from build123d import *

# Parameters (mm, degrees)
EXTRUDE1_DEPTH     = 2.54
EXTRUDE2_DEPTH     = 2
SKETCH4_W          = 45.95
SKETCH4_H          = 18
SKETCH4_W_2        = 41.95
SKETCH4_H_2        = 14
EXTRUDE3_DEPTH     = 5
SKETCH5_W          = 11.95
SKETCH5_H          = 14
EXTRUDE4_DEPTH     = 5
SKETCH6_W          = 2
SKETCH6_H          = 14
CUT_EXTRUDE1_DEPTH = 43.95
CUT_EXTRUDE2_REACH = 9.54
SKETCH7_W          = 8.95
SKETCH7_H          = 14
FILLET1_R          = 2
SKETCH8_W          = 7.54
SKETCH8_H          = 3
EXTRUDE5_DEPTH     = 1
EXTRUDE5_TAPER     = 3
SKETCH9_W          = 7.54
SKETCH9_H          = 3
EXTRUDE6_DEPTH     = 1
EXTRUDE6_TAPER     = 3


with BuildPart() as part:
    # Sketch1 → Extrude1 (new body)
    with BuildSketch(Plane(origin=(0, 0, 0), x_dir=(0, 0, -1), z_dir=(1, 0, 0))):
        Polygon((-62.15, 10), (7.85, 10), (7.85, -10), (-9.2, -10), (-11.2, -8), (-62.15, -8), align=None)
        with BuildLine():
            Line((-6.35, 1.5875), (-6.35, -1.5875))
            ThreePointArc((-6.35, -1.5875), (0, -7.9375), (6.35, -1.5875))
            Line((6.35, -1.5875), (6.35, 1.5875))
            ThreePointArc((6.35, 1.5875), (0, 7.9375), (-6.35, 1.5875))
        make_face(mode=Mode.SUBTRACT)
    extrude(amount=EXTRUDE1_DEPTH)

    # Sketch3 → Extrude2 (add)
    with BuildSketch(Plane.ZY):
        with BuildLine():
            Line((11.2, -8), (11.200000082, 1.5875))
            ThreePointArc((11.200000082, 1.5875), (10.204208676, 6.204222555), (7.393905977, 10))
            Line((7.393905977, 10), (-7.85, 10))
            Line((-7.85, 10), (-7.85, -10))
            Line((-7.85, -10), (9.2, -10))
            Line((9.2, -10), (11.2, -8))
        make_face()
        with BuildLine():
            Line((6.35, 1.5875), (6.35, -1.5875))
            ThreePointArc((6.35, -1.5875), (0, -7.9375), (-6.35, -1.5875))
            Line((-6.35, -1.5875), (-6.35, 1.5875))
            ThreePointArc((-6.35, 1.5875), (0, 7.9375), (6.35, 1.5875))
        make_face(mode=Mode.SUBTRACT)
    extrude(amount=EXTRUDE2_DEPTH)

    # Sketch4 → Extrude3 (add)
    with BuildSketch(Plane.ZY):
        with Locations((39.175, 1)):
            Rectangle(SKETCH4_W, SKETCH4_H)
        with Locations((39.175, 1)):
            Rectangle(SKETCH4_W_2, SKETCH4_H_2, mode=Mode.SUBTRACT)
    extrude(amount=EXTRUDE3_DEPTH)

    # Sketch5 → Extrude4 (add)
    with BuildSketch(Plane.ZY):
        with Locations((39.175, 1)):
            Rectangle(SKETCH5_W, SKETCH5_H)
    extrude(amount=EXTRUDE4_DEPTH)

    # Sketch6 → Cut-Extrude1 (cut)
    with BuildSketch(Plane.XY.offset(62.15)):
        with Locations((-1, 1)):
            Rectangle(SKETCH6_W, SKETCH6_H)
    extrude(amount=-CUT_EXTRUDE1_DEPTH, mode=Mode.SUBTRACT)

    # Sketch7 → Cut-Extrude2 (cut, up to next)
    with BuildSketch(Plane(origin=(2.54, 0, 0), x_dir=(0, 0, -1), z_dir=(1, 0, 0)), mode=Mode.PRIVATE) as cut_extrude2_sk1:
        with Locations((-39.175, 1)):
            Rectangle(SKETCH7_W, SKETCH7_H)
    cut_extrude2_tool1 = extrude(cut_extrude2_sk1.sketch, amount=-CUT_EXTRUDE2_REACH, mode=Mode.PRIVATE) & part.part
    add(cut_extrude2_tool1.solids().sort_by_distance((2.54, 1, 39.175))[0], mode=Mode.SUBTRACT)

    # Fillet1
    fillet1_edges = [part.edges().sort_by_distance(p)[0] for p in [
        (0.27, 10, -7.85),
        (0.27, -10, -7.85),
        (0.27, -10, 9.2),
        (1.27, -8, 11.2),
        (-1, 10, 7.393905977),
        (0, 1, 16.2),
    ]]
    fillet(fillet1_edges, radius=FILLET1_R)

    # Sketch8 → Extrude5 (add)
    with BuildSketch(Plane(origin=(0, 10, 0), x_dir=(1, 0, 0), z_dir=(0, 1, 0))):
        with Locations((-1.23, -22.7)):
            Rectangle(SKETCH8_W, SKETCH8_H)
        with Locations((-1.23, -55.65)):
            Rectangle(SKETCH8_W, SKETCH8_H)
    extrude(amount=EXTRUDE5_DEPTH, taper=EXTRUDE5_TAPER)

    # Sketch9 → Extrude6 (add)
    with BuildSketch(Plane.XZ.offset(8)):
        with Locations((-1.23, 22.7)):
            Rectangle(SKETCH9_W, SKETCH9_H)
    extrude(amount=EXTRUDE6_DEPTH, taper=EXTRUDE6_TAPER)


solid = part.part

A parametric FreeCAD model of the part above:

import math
import FreeCAD as App
import Part
import Sketcher

V = App.Vector
Q = App.Units.Quantity


def edges_at(feature, points):
    """Names of the edges that pass closest to the given points."""
    edges = feature.Shape.Edges
    near = lambda p: min(range(len(edges)), key=lambda i: edges[i].distToShape(Part.Vertex(*p))[0])
    return sorted({f"Edge{near(p) + 1}" for p in points})

doc = App.newDocument("Part")
params = doc.addObject("Spreadsheet::Sheet", "Params")
for row, (alias, value) in enumerate([
    ("sketch1_width", "18 mm"),
    ("sketch1_width2", "20 mm"),
    ("sketch1_height", "70 mm"),
    ("sketch1_radius", "6.35 mm"),
    ("sketch1_height2", "50.95 mm"),
    ("pad1_length", "2.54 mm"),
    ("sketch2_radius", "11.2 mm"),
    ("sketch2_width", "20 mm"),
    ("sketch2_radius2", "6.35 mm"),
    ("sketch2_height", "17.05 mm"),
    ("pad2_length", "2 mm"),
    ("sketch3_width", "18 mm"),
    ("sketch3_width2", "14 mm"),
    ("sketch3_height", "45.95 mm"),
    ("pad3_length", "5 mm"),
    ("sketch4_width", "14 mm"),
    ("sketch4_height", "11.95 mm"),
    ("pad4_length", "5 mm"),
    ("sketch5_width", "2 mm"),
    ("sketch5_height", "14 mm"),
    ("pocket1_length", "43.95 mm"),
    ("sketch6_width", "14 mm"),
    ("sketch6_height", "8.95 mm"),
    ("fillet_radius", "2 mm"),
    ("sketch7_height", "3 mm"),
    ("sketch7_width", "7.54 mm"),
    ("pad5_length", "1 mm"),
    ("pad5_taper", "-3 deg"),
    ("sketch8_height", "3 mm"),
    ("sketch8_width", "7.54 mm"),
    ("pad6_length", "1 mm"),
    ("pad6_taper", "-3 deg"),
], start=1):
    params.set(f"A{row}", alias)
    params.set(f"B{row}", "=" + value)
    params.setAlias(f"B{row}", alias)

body = doc.addObject("PartDesign::Body", "Body")

# Sketch on YZ plane
sketch1 = body.newObject("Sketcher::SketchObject", "Sketch")
sketch1.AttachmentSupport = (doc.getObject("YZ_Plane"), [""])
sketch1.MapMode = "FlatFace"
sketch1.addGeometry(Part.LineSegment(V(10, -7.8, 0), V(10, 62.1, 0)), False)
sketch1.addGeometry(Part.LineSegment(V(10, 62.1, 0), V(-8, 62.1, 0)), False)
sketch1.addGeometry(Part.LineSegment(V(-8, 62.1, 0), V(-8, 11.2, 0)), False)
sketch1.addGeometry(Part.LineSegment(V(-8, 11.2, 0), V(-10, 9.2, 0)), False)
sketch1.addGeometry(Part.LineSegment(V(-10, 9.2, 0), V(-10, -7.8, 0)), False)
sketch1.addGeometry(Part.LineSegment(V(-10, -7.8, 0), V(10, -7.8, 0)), False)
sketch1.addGeometry(Part.ArcOfCircle(Part.Circle(V(1.6, 0, 0), V(0, 0, 1), 6.3), math.radians(-90), math.radians(90)), False)
sketch1.addGeometry(Part.LineSegment(V(1.6, -6.3, 0), V(-1.6, -6.3, 0)), False)
sketch1.addGeometry(Part.ArcOfCircle(Part.Circle(V(-1.6, 0, 0), V(0, 0, 1), 6.3), math.radians(90), math.radians(270)), False)
sketch1.addGeometry(Part.LineSegment(V(-1.6, 6.3, 0), V(1.6, 6.3, 0)), False)
sketch1.addConstraint(Sketcher.Constraint("Coincident", 0, 2, 1, 1))
sketch1.addConstraint(Sketcher.Constraint("Coincident", 1, 2, 2, 1))
sketch1.addConstraint(Sketcher.Constraint("Coincident", 2, 2, 3, 1))
sketch1.addConstraint(Sketcher.Constraint("Coincident", 3, 2, 4, 1))
sketch1.addConstraint(Sketcher.Constraint("Coincident", 4, 2, 5, 1))
sketch1.addConstraint(Sketcher.Constraint("Coincident", 5, 2, 0, 1))
sketch1.addConstraint(Sketcher.Constraint("Tangent", 6, 1, 7, 1))
sketch1.addConstraint(Sketcher.Constraint("Tangent", 7, 2, 8, 2))
sketch1.addConstraint(Sketcher.Constraint("Tangent", 8, 1, 9, 1))
sketch1.addConstraint(Sketcher.Constraint("Tangent", 9, 2, 6, 2))
sketch1.addConstraint(Sketcher.Constraint("Vertical", 0))
sketch1.addConstraint(Sketcher.Constraint("Horizontal", 1))
sketch1.addConstraint(Sketcher.Constraint("Vertical", 2))
sketch1.addConstraint(Sketcher.Constraint("Vertical", 4))
sketch1.addConstraint(Sketcher.Constraint("Horizontal", 5))
sketch1.addConstraint(Sketcher.Constraint("Horizontal", 7))
sketch1.addConstraint(Sketcher.Constraint("Horizontal", 9))
sketch1.addConstraint(Sketcher.Constraint("Symmetric", 6, 3, 8, 3, -1, 1))
sketch1.addConstraint(Sketcher.Constraint("DistanceX", 1, 2, 1, 1, 18.0))
sketch1.addConstraint(Sketcher.Constraint("DistanceX", 5, 1, 5, 2, 20.0))
sketch1.addConstraint(Sketcher.Constraint("DistanceY", 0, 1, 0, 2, 70.0))
sketch1.addConstraint(Sketcher.Constraint("Angle", 3, Q("-135 deg")))
sketch1.addConstraint(Sketcher.Constraint("Radius", 6, 6.35))
sketch1.addConstraint(Sketcher.Constraint("DistanceX", -1, 1, 0, 2, 10.0))
sketch1.addConstraint(Sketcher.Constraint("DistanceY", 2, 2, 2, 1, 50.95))
sketch1.addConstraint(Sketcher.Constraint("DistanceY", -1, 1, 2, 2, 11.2))
sketch1.addConstraint(Sketcher.Constraint("DistanceX", 7, 2, 7, 1, 3.175))
sketch1.setExpression("Constraints[18]", "Params.sketch1_width")
sketch1.setExpression("Constraints[19]", "Params.sketch1_width2")
sketch1.setExpression("Constraints[20]", "Params.sketch1_height")
sketch1.setExpression("Constraints[22]", "Params.sketch1_radius")
sketch1.setExpression("Constraints[24]", "Params.sketch1_height2")
pad1 = body.newObject("PartDesign::Pad", "Pad")
pad1.Profile = sketch1
pad1.setExpression("Length", "Params.pad1_length")

# Sketch on YZ plane
sketch2 = body.newObject("Sketcher::SketchObject", "Sketch001")
sketch2.AttachmentSupport = (doc.getObject("YZ_Plane"), [""])
sketch2.MapMode = "FlatFace"
sketch2.addGeometry(Part.LineSegment(V(-8, 11.2, 0), V(1.6, 11.2, 0)), False)
sketch2.addGeometry(Part.ArcOfCircle(Part.Circle(V(1.6, 0, 0), V(0, 0, 1), 11.2), math.radians(41), math.radians(90)), False)
sketch2.addGeometry(Part.LineSegment(V(10, 7.4, 0), V(10, -7.8, 0)), False)
sketch2.addGeometry(Part.LineSegment(V(10, -7.8, 0), V(-10, -7.8, 0)), False)
sketch2.addGeometry(Part.LineSegment(V(-10, -7.8, 0), V(-10, 9.2, 0)), False)
sketch2.addGeometry(Part.LineSegment(V(-10, 9.2, 0), V(-8, 11.2, 0)), False)
sketch2.addGeometry(Part.ArcOfCircle(Part.Circle(V(1.6, 0, 0), V(0, 0, 1), 6.3), math.radians(-90), math.radians(90)), False)
sketch2.addGeometry(Part.LineSegment(V(1.6, 6.3, 0), V(-1.6, 6.3, 0)), False)
sketch2.addGeometry(Part.ArcOfCircle(Part.Circle(V(-1.6, 0, 0), V(0, 0, 1), 6.3), math.radians(90), math.radians(270)), False)
sketch2.addGeometry(Part.LineSegment(V(-1.6, -6.3, 0), V(1.6, -6.3, 0)), False)
sketch2.addConstraint(Sketcher.Constraint("Tangent", 0, 2, 1, 2))
sketch2.addConstraint(Sketcher.Constraint("Coincident", 1, 1, 2, 1))
sketch2.addConstraint(Sketcher.Constraint("Coincident", 2, 2, 3, 1))
sketch2.addConstraint(Sketcher.Constraint("Coincident", 3, 2, 4, 1))
sketch2.addConstraint(Sketcher.Constraint("Coincident", 4, 2, 5, 1))
sketch2.addConstraint(Sketcher.Constraint("Coincident", 5, 2, 0, 1))
sketch2.addConstraint(Sketcher.Constraint("Tangent", 6, 2, 7, 1))
sketch2.addConstraint(Sketcher.Constraint("Tangent", 7, 2, 8, 1))
sketch2.addConstraint(Sketcher.Constraint("Tangent", 8, 2, 9, 1))
sketch2.addConstraint(Sketcher.Constraint("Tangent", 9, 2, 6, 1))
sketch2.addConstraint(Sketcher.Constraint("Horizontal", 0))
sketch2.addConstraint(Sketcher.Constraint("Vertical", 2))
sketch2.addConstraint(Sketcher.Constraint("Horizontal", 3))
sketch2.addConstraint(Sketcher.Constraint("Vertical", 4))
sketch2.addConstraint(Sketcher.Constraint("Horizontal", 7))
sketch2.addConstraint(Sketcher.Constraint("Horizontal", 9))
sketch2.addConstraint(Sketcher.Constraint("Coincident", 6, 3, 1, 3))
sketch2.addConstraint(Sketcher.Constraint("Symmetric", 1, 3, 8, 3, -1, 1))
sketch2.addConstraint(Sketcher.Constraint("Radius", 1, 11.2))
sketch2.addConstraint(Sketcher.Constraint("DistanceX", 3, 2, 3, 1, 20.0))
sketch2.addConstraint(Sketcher.Constraint("Angle", 5, Q("45 deg")))
sketch2.addConstraint(Sketcher.Constraint("Radius", 6, 6.35))
sketch2.addConstraint(Sketcher.Constraint("DistanceX", -1, 1, 1, 1, 10.0))
sketch2.addConstraint(Sketcher.Constraint("DistanceX", 5, 2, -1, 1, 8.0))
sketch2.addConstraint(Sketcher.Constraint("DistanceY", 4, 1, 4, 2, 17.05))
sketch2.addConstraint(Sketcher.Constraint("DistanceX", 7, 2, 7, 1, 3.175))
sketch2.setExpression("Constraints[18]", "Params.sketch2_radius")
sketch2.setExpression("Constraints[19]", "Params.sketch2_width")
sketch2.setExpression("Constraints[21]", "Params.sketch2_radius2")
sketch2.setExpression("Constraints[24]", "Params.sketch2_height")
pad2 = body.newObject("PartDesign::Pad", "Pad001")
pad2.Profile = sketch2
pad2.setExpression("Length", "Params.pad2_length")
pad2.Reversed = True

# Sketch on YZ plane
sketch3 = body.newObject("Sketcher::SketchObject", "Sketch002")
sketch3.AttachmentSupport = (doc.getObject("YZ_Plane"), [""])
sketch3.MapMode = "FlatFace"
sketch3.addGeometry(Part.LineSegment(V(10, 16, 0), V(-8, 16, 0)), False)
sketch3.addGeometry(Part.LineSegment(V(-8, 16, 0), V(-8, 62, 0)), False)
sketch3.addGeometry(Part.LineSegment(V(-8, 62, 0), V(10, 62, 0)), False)
sketch3.addGeometry(Part.LineSegment(V(10, 62, 0), V(10, 16, 0)), False)
sketch3.addGeometry(Part.LineSegment(V(-6, 60, 0), V(-6, 18, 0)), False)
sketch3.addGeometry(Part.LineSegment(V(-6, 18, 0), V(8, 18, 0)), False)
sketch3.addGeometry(Part.LineSegment(V(8, 18, 0), V(8, 60, 0)), False)
sketch3.addGeometry(Part.LineSegment(V(8, 60, 0), V(-6, 60, 0)), False)
sketch3.addConstraint(Sketcher.Constraint("Coincident", 0, 2, 1, 1))
sketch3.addConstraint(Sketcher.Constraint("Coincident", 1, 2, 2, 1))
sketch3.addConstraint(Sketcher.Constraint("Coincident", 2, 2, 3, 1))
sketch3.addConstraint(Sketcher.Constraint("Coincident", 3, 2, 0, 1))
sketch3.addConstraint(Sketcher.Constraint("Coincident", 4, 2, 5, 1))
sketch3.addConstraint(Sketcher.Constraint("Coincident", 5, 2, 6, 1))
sketch3.addConstraint(Sketcher.Constraint("Coincident", 6, 2, 7, 1))
sketch3.addConstraint(Sketcher.Constraint("Coincident", 7, 2, 4, 1))
sketch3.addConstraint(Sketcher.Constraint("Horizontal", 0))
sketch3.addConstraint(Sketcher.Constraint("Vertical", 1))
sketch3.addConstraint(Sketcher.Constraint("Horizontal", 2))
sketch3.addConstraint(Sketcher.Constraint("Vertical", 3))
sketch3.addConstraint(Sketcher.Constraint("Vertical", 4))
sketch3.addConstraint(Sketcher.Constraint("Horizontal", 5))
sketch3.addConstraint(Sketcher.Constraint("Vertical", 6))
sketch3.addConstraint(Sketcher.Constraint("Horizontal", 7))
sketch3.addConstraint(Sketcher.Constraint("DistanceX", 0, 2, 0, 1, 18.0))
sketch3.addConstraint(Sketcher.Constraint("DistanceX", 5, 1, 5, 2, 14.0))
sketch3.addConstraint(Sketcher.Constraint("DistanceX", 0, 2, -1, 1, 8.0))
sketch3.addConstraint(Sketcher.Constraint("DistanceX", 4, 2, -1, 1, 6.0))
sketch3.addConstraint(Sketcher.Constraint("DistanceY", 0, 2, 4, 2, 2.0))
sketch3.addConstraint(Sketcher.Constraint("DistanceY", 6, 2, 2, 2, 2.0))
sketch3.addConstraint(Sketcher.Constraint("DistanceY", 1, 1, 1, 2, 45.95))
sketch3.addConstraint(Sketcher.Constraint("DistanceY", -1, 1, 0, 2, 16.2))
sketch3.setExpression("Constraints[16]", "Params.sketch3_width")
sketch3.setExpression("Constraints[17]", "Params.sketch3_width2")
sketch3.setExpression("Constraints[22]", "Params.sketch3_height")
pad3 = body.newObject("PartDesign::Pad", "Pad002")
pad3.Profile = sketch3
pad3.setExpression("Length", "Params.pad3_length")
pad3.Reversed = True

# Sketch on YZ plane
sketch4 = body.newObject("Sketcher::SketchObject", "Sketch003")
sketch4.AttachmentSupport = (doc.getObject("YZ_Plane"), [""])
sketch4.MapMode = "FlatFace"
sketch4.addGeometry(Part.LineSegment(V(8, 33, 0), V(-6, 33, 0)), False)
sketch4.addGeometry(Part.LineSegment(V(-6, 33, 0), V(-6, 45, 0)), False)
sketch4.addGeometry(Part.LineSegment(V(-6, 45, 0), V(8, 45, 0)), False)
sketch4.addGeometry(Part.LineSegment(V(8, 45, 0), V(8, 33, 0)), False)
sketch4.addConstraint(Sketcher.Constraint("Coincident", 0, 2, 1, 1))
sketch4.addConstraint(Sketcher.Constraint("Coincident", 1, 2, 2, 1))
sketch4.addConstraint(Sketcher.Constraint("Coincident", 2, 2, 3, 1))
sketch4.addConstraint(Sketcher.Constraint("Coincident", 3, 2, 0, 1))
sketch4.addConstraint(Sketcher.Constraint("Horizontal", 0))
sketch4.addConstraint(Sketcher.Constraint("Vertical", 1))
sketch4.addConstraint(Sketcher.Constraint("Horizontal", 2))
sketch4.addConstraint(Sketcher.Constraint("Vertical", 3))
sketch4.addConstraint(Sketcher.Constraint("DistanceX", 0, 2, 0, 1, 14.0))
sketch4.addConstraint(Sketcher.Constraint("DistanceX", 0, 2, -1, 1, 6.0))
sketch4.addConstraint(Sketcher.Constraint("DistanceY", 1, 1, 1, 2, 11.95))
sketch4.addConstraint(Sketcher.Constraint("DistanceY", -1, 1, 0, 2, 33.2))
sketch4.setExpression("Constraints[8]", "Params.sketch4_width")
sketch4.setExpression("Constraints[10]", "Params.sketch4_height")
pad4 = body.newObject("PartDesign::Pad", "Pad003")
pad4.Profile = sketch4
pad4.setExpression("Length", "Params.pad4_length")
pad4.Reversed = True

# Sketch on XY plane
sketch5 = body.newObject("Sketcher::SketchObject", "Sketch004")
sketch5.AttachmentSupport = (doc.getObject("XY_Plane"), [""])
sketch5.MapMode = "FlatFace"
sketch5.AttachmentOffset = App.Placement(V(0, 0, 62.15), App.Rotation())
sketch5.addGeometry(Part.LineSegment(V(-2, 8, 0), V(-2, -6, 0)), False)
sketch5.addGeometry(Part.LineSegment(V(-2, -6, 0), V(0, -6, 0)), False)
sketch5.addGeometry(Part.LineSegment(V(0, -6, 0), V(0, 8, 0)), False)
sketch5.addGeometry(Part.LineSegment(V(0, 8, 0), V(-2, 8, 0)), False)
sketch5.addConstraint(Sketcher.Constraint("Coincident", 0, 2, 1, 1))
sketch5.addConstraint(Sketcher.Constraint("Coincident", 1, 2, 2, 1))
sketch5.addConstraint(Sketcher.Constraint("Coincident", 2, 2, 3, 1))
sketch5.addConstraint(Sketcher.Constraint("Coincident", 3, 2, 0, 1))
sketch5.addConstraint(Sketcher.Constraint("Vertical", 0))
sketch5.addConstraint(Sketcher.Constraint("Horizontal", 1))
sketch5.addConstraint(Sketcher.Constraint("Vertical", 2))
sketch5.addConstraint(Sketcher.Constraint("Horizontal", 3))
sketch5.addConstraint(Sketcher.Constraint("PointOnObject", 1, 2, -2))
sketch5.addConstraint(Sketcher.Constraint("DistanceX", 1, 1, 1, 2, 2.0))
sketch5.addConstraint(Sketcher.Constraint("DistanceY", 0, 2, 0, 1, 14.0))
sketch5.addConstraint(Sketcher.Constraint("DistanceY", 0, 2, -1, 1, 6.0))
sketch5.setExpression("Constraints[9]", "Params.sketch5_width")
sketch5.setExpression("Constraints[10]", "Params.sketch5_height")
pocket1 = body.newObject("PartDesign::Pocket", "Pocket")
pocket1.Profile = sketch5
pocket1.setExpression("Length", "Params.pocket1_length")

# Sketch on YZ plane
sketch6 = body.newObject("Sketcher::SketchObject", "Sketch005")
sketch6.AttachmentSupport = (doc.getObject("YZ_Plane"), [""])
sketch6.MapMode = "FlatFace"
sketch6.AttachmentOffset = App.Placement(V(0, 0, 2.54), App.Rotation())
sketch6.addGeometry(Part.LineSegment(V(8, 44, 0), V(-6, 44, 0)), False)
sketch6.addGeometry(Part.LineSegment(V(-6, 44, 0), V(-6, 35, 0)), False)
sketch6.addGeometry(Part.LineSegment(V(-6, 35, 0), V(8, 35, 0)), False)
sketch6.addGeometry(Part.LineSegment(V(8, 35, 0), V(8, 44, 0)), False)
sketch6.addConstraint(Sketcher.Constraint("Coincident", 0, 2, 1, 1))
sketch6.addConstraint(Sketcher.Constraint("Coincident", 1, 2, 2, 1))
sketch6.addConstraint(Sketcher.Constraint("Coincident", 2, 2, 3, 1))
sketch6.addConstraint(Sketcher.Constraint("Coincident", 3, 2, 0, 1))
sketch6.addConstraint(Sketcher.Constraint("Horizontal", 0))
sketch6.addConstraint(Sketcher.Constraint("Vertical", 1))
sketch6.addConstraint(Sketcher.Constraint("Horizontal", 2))
sketch6.addConstraint(Sketcher.Constraint("Vertical", 3))
sketch6.addConstraint(Sketcher.Constraint("DistanceX", 0, 2, 0, 1, 14.0))
sketch6.addConstraint(Sketcher.Constraint("DistanceX", 0, 2, -1, 1, 6.0))
sketch6.addConstraint(Sketcher.Constraint("DistanceY", 1, 2, 1, 1, 8.95))
sketch6.addConstraint(Sketcher.Constraint("DistanceY", -1, 1, 1, 2, 34.7))
sketch6.setExpression("Constraints[8]", "Params.sketch6_width")
sketch6.setExpression("Constraints[10]", "Params.sketch6_height")
pocket2 = body.newObject("PartDesign::Pocket", "Pocket001")
pocket2.Profile = sketch6
pocket2.Type = "UpToFirst"
doc.recompute()

fillet = body.newObject("PartDesign::Fillet", "Fillet")
fillet.Base = (pocket2, edges_at(pocket2, [
    (0.27, 10, -7.85),
    (0.27, -10, -7.85),
    (0.27, -10, 9.2),
    (1.27, -8, 11.2),
    (-1, 10, 7.394),
    (0, 1, 16.2),
]))
fillet.setExpression("Radius", "Params.fillet_radius")

# Sketch on XZ plane
sketch7 = body.newObject("Sketcher::SketchObject", "Sketch006")
sketch7.AttachmentSupport = (doc.getObject("XZ_Plane"), [""])
sketch7.MapMode = "FlatFace"
sketch7.AttachmentOffset = App.Placement(V(0, 0, -10), App.Rotation())
sketch7.addGeometry(Part.LineSegment(V(-5, 21.2, 0), V(-5, 24.2, 0)), False)
sketch7.addGeometry(Part.LineSegment(V(-5, 24.2, 0), V(2.5, 24.2, 0)), False)
sketch7.addGeometry(Part.LineSegment(V(2.5, 24.2, 0), V(2.5, 21.2, 0)), False)
sketch7.addGeometry(Part.LineSegment(V(2.5, 21.2, 0), V(-5, 21.2, 0)), False)
sketch7.addGeometry(Part.LineSegment(V(-5, 54.1, 0), V(-5, 57.1, 0)), False)
sketch7.addGeometry(Part.LineSegment(V(-5, 57.1, 0), V(2.5, 57.1, 0)), False)
sketch7.addGeometry(Part.LineSegment(V(2.5, 57.1, 0), V(2.5, 54.1, 0)), False)
sketch7.addGeometry(Part.LineSegment(V(2.5, 54.1, 0), V(-5, 54.1, 0)), False)
sketch7.addConstraint(Sketcher.Constraint("Coincident", 0, 2, 1, 1))
sketch7.addConstraint(Sketcher.Constraint("Coincident", 1, 2, 2, 1))
sketch7.addConstraint(Sketcher.Constraint("Coincident", 2, 2, 3, 1))
sketch7.addConstraint(Sketcher.Constraint("Coincident", 3, 2, 0, 1))
sketch7.addConstraint(Sketcher.Constraint("Coincident", 4, 2, 5, 1))
sketch7.addConstraint(Sketcher.Constraint("Coincident", 5, 2, 6, 1))
sketch7.addConstraint(Sketcher.Constraint("Coincident", 6, 2, 7, 1))
sketch7.addConstraint(Sketcher.Constraint("Coincident", 7, 2, 4, 1))
sketch7.addConstraint(Sketcher.Constraint("Vertical", 0))
sketch7.addConstraint(Sketcher.Constraint("Horizontal", 1))
sketch7.addConstraint(Sketcher.Constraint("Vertical", 2))
sketch7.addConstraint(Sketcher.Constraint("Horizontal", 3))
sketch7.addConstraint(Sketcher.Constraint("Vertical", 4))
sketch7.addConstraint(Sketcher.Constraint("Horizontal", 5))
sketch7.addConstraint(Sketcher.Constraint("Vertical", 6))
sketch7.addConstraint(Sketcher.Constraint("Horizontal", 7))
sketch7.addConstraint(Sketcher.Constraint("Vertical", 3, 2, 4, 2))
sketch7.addConstraint(Sketcher.Constraint("Vertical", 2, 2, 5, 2))
sketch7.addConstraint(Sketcher.Constraint("Equal", 2, 4))
sketch7.addConstraint(Sketcher.Constraint("DistanceY", 0, 1, 0, 2, 3.0))
sketch7.addConstraint(Sketcher.Constraint("DistanceX", 0, 2, -1, 1, 5.0))
sketch7.addConstraint(Sketcher.Constraint("DistanceX", 1, 1, 1, 2, 7.54))
sketch7.addConstraint(Sketcher.Constraint("DistanceY", -1, 1, 0, 2, 24.2))
sketch7.addConstraint(Sketcher.Constraint("DistanceY", -1, 1, 4, 2, 57.15))
sketch7.setExpression("Constraints[19]", "Params.sketch7_height")
sketch7.setExpression("Constraints[21]", "Params.sketch7_width")
pad5 = body.newObject("PartDesign::Pad", "Pad004")
pad5.Profile = sketch7
pad5.setExpression("Length", "Params.pad5_length")
pad5.Reversed = True
pad5.setExpression("TaperAngle", "Params.pad5_taper")

# Sketch on XZ plane
sketch8 = body.newObject("Sketcher::SketchObject", "Sketch007")
sketch8.AttachmentSupport = (doc.getObject("XZ_Plane"), [""])
sketch8.MapMode = "FlatFace"
sketch8.AttachmentOffset = App.Placement(V(0, 0, 8), App.Rotation())
sketch8.addGeometry(Part.LineSegment(V(-5, 24.2, 0), V(-5, 21.2, 0)), False)
sketch8.addGeometry(Part.LineSegment(V(-5, 21.2, 0), V(2.5, 21.2, 0)), False)
sketch8.addGeometry(Part.LineSegment(V(2.5, 21.2, 0), V(2.5, 24.2, 0)), False)
sketch8.addGeometry(Part.LineSegment(V(2.5, 24.2, 0), V(-5, 24.2, 0)), False)
sketch8.addConstraint(Sketcher.Constraint("Coincident", 0, 2, 1, 1))
sketch8.addConstraint(Sketcher.Constraint("Coincident", 1, 2, 2, 1))
sketch8.addConstraint(Sketcher.Constraint("Coincident", 2, 2, 3, 1))
sketch8.addConstraint(Sketcher.Constraint("Coincident", 3, 2, 0, 1))
sketch8.addConstraint(Sketcher.Constraint("Vertical", 0))
sketch8.addConstraint(Sketcher.Constraint("Horizontal", 1))
sketch8.addConstraint(Sketcher.Constraint("Vertical", 2))
sketch8.addConstraint(Sketcher.Constraint("Horizontal", 3))
sketch8.addConstraint(Sketcher.Constraint("DistanceY", 0, 2, 0, 1, 3.0))
sketch8.addConstraint(Sketcher.Constraint("DistanceX", 0, 2, -1, 1, 5.0))
sketch8.addConstraint(Sketcher.Constraint("DistanceX", 1, 1, 1, 2, 7.54))
sketch8.addConstraint(Sketcher.Constraint("DistanceY", -1, 1, 0, 2, 21.2))
sketch8.setExpression("Constraints[8]", "Params.sketch8_height")
sketch8.setExpression("Constraints[10]", "Params.sketch8_width")
pad6 = body.newObject("PartDesign::Pad", "Pad005")
pad6.Profile = sketch8
pad6.setExpression("Length", "Params.pad6_length")
pad6.setExpression("TaperAngle", "Params.pad6_taper")

doc.recompute()
